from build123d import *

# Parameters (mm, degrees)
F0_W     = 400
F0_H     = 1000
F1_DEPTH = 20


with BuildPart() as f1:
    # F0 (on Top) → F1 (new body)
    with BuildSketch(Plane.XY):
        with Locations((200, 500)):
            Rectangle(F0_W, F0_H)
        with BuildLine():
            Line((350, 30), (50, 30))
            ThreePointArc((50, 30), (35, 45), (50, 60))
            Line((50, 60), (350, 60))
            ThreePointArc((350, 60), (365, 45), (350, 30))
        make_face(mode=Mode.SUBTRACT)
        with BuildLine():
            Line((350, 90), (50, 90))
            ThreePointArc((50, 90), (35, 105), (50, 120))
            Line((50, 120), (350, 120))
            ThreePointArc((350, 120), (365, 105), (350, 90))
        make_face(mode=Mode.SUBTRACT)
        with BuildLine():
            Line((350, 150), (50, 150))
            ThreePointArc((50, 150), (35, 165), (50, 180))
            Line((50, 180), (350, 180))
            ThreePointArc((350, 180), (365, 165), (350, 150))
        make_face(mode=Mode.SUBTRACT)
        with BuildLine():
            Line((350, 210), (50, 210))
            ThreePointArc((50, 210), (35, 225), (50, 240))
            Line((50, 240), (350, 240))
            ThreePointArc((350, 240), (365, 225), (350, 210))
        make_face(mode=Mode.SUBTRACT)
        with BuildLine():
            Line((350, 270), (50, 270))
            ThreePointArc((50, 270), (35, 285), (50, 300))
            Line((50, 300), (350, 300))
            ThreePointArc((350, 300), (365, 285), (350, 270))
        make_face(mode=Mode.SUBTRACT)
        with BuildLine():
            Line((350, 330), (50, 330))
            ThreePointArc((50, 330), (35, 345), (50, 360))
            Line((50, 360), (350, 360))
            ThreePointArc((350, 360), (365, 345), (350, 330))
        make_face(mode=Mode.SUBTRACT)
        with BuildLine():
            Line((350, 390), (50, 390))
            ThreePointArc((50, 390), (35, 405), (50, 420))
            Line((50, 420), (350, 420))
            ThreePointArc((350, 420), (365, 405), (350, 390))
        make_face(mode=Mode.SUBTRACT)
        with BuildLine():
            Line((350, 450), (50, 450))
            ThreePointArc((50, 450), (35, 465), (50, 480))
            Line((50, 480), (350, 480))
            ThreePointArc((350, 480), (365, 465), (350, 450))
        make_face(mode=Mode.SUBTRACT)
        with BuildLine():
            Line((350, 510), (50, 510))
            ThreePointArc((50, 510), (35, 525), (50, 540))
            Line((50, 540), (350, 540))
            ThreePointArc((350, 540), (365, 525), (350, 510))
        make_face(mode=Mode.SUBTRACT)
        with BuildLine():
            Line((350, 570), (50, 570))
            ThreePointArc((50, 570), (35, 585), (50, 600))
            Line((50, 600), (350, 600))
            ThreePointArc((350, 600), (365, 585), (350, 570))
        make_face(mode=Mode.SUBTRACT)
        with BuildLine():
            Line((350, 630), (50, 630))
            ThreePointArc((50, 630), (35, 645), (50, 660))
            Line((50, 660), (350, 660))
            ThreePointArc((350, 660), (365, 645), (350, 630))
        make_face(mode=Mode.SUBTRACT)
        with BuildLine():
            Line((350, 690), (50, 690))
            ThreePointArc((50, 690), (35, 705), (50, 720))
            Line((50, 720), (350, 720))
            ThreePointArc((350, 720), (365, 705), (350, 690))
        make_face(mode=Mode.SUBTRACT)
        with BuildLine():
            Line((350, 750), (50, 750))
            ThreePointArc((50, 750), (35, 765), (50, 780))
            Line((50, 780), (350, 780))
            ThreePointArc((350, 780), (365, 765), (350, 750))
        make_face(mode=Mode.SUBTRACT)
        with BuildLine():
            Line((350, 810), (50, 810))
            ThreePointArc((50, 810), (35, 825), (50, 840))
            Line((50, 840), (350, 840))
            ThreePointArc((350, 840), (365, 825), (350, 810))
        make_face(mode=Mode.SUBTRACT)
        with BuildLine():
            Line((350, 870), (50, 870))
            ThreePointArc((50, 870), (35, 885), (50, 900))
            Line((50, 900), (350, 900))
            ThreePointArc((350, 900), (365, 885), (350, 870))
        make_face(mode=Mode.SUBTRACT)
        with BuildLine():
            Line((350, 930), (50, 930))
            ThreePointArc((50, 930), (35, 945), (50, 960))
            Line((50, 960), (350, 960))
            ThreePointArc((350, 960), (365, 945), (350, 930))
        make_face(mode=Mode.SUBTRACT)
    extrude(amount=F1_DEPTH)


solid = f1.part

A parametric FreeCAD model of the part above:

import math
import FreeCAD as App
import Part
import Sketcher

V = App.Vector
Q = App.Units.Quantity

doc = App.newDocument("Part")
body = doc.addObject("PartDesign::Body", "Body")

sketch1 = body.newObject("Sketcher::SketchObject", "Sketch")
sketch1.AttachmentSupport = (doc.getObject("XY_Plane"), [""])
sketch1.MapMode = "FlatFace"
sketch1.addGeometry(Part.LineSegment(V(0, 1000, 0), V(0, 0, 0)), False)
sketch1.addGeometry(Part.LineSegment(V(0, 0, 0), V(400, 0, 0)), False)
sketch1.addGeometry(Part.LineSegment(V(400, 0, 0), V(400, 1000, 0)), False)
sketch1.addGeometry(Part.LineSegment(V(400, 1000, 0), V(0, 1000, 0)), False)
sketch1.addGeometry(Part.ArcOfCircle(Part.Circle(V(350, 45, 0), V(0, 0, 1), 15), math.radians(-90), math.radians(90)), False)
sketch1.addGeometry(Part.LineSegment(V(350, 30, 0), V(50, 30, 0)), False)
sketch1.addGeometry(Part.ArcOfCircle(Part.Circle(V(50, 45, 0), V(0, 0, 1), 15), math.radians(90), math.radians(270)), False)
sketch1.addGeometry(Part.LineSegment(V(50, 60, 0), V(350, 60, 0)), False)
sketch1.addGeometry(Part.ArcOfCircle(Part.Circle(V(350, 105, 0), V(0, 0, 1), 15), math.radians(-90), math.radians(90)), False)
sketch1.addGeometry(Part.LineSegment(V(350, 90, 0), V(50, 90, 0)), False)
sketch1.addGeometry(Part.ArcOfCircle(Part.Circle(V(50, 105, 0), V(0, 0, 1), 15), math.radians(90), math.radians(270)), False)
sketch1.addGeometry(Part.LineSegment(V(50, 120, 0), V(350, 120, 0)), False)
sketch1.addGeometry(Part.ArcOfCircle(Part.Circle(V(350, 165, 0), V(0, 0, 1), 15), math.radians(-90), math.radians(90)), False)
sketch1.addGeometry(Part.LineSegment(V(350, 150, 0), V(50, 150, 0)), False)
sketch1.addGeometry(Part.ArcOfCircle(Part.Circle(V(50, 165, 0), V(0, 0, 1), 15), math.radians(90), math.radians(270)), False)
sketch1.addGeometry(Part.LineSegment(V(50, 180, 0), V(350, 180, 0)), False)
sketch1.addGeometry(Part.ArcOfCircle(Part.Circle(V(350, 225, 0), V(0, 0, 1), 15), math.radians(-90), math.radians(90)), False)
sketch1.addGeometry(Part.LineSegment(V(350, 210, 0), V(50, 210, 0)), False)
sketch1.addGeometry(Part.ArcOfCircle(Part.Circle(V(50, 225, 0), V(0, 0, 1), 15), math.radians(90), math.radians(270)), False)
sketch1.addGeometry(Part.LineSegment(V(50, 240, 0), V(350, 240, 0)), False)
sketch1.addGeometry(Part.ArcOfCircle(Part.Circle(V(350, 285, 0), V(0, 0, 1), 15), math.radians(-90), math.radians(90)), False)
sketch1.addGeometry(Part.LineSegment(V(350, 270, 0), V(50, 270, 0)), False)
sketch1.addGeometry(Part.ArcOfCircle(Part.Circle(V(50, 285, 0), V(0, 0, 1), 15), math.radians(90), math.radians(270)), False)
sketch1.addGeometry(Part.LineSegment(V(50, 300, 0), V(350, 300, 0)), False)
sketch1.addGeometry(Part.ArcOfCircle(Part.Circle(V(350, 345, 0), V(0, 0, 1), 15), math.radians(-90), math.radians(90)), False)
sketch1.addGeometry(Part.LineSegment(V(350, 330, 0), V(50, 330, 0)), False)
sketch1.addGeometry(Part.ArcOfCircle(Part.Circle(V(50, 345, 0), V(0, 0, 1), 15), math.radians(90), math.radians(270)), False)
sketch1.addGeometry(Part.LineSegment(V(50, 360, 0), V(350, 360, 0)), False)
sketch1.addGeometry(Part.ArcOfCircle(Part.Circle(V(350, 405, 0), V(0, 0, 1), 15), math.radians(-90), math.radians(90)), False)
sketch1.addGeometry(Part.LineSegment(V(350, 390, 0), V(50, 390, 0)), False)
sketch1.addGeometry(Part.ArcOfCircle(Part.Circle(V(50, 405, 0), V(0, 0, 1), 15), math.radians(90), math.radians(270)), False)
sketch1.addGeometry(Part.LineSegment(V(50, 420, 0), V(350, 420, 0)), False)
sketch1.addGeometry(Part.ArcOfCircle(Part.Circle(V(350, 465, 0), V(0, 0, 1), 15), math.radians(-90), math.radians(90)), False)
sketch1.addGeometry(Part.LineSegment(V(350, 450, 0), V(50, 450, 0)), False)
sketch1.addGeometry(Part.ArcOfCircle(Part.Circle(V(50, 465, 0), V(0, 0, 1), 15), math.radians(90), math.radians(270)), False)
sketch1.addGeometry(Part.LineSegment(V(50, 480, 0), V(350, 480, 0)), False)
sketch1.addGeometry(Part.ArcOfCircle(Part.Circle(V(350, 525, 0), V(0, 0, 1), 15), math.radians(-90), math.radians(90)), False)
sketch1.addGeometry(Part.LineSegment(V(350, 510, 0), V(50, 510, 0)), False)
sketch1.addGeometry(Part.ArcOfCircle(Part.Circle(V(50, 525, 0), V(0, 0, 1), 15), math.radians(90), math.radians(270)), False)
sketch1.addGeometry(Part.LineSegment(V(50, 540, 0), V(350, 540, 0)), False)
sketch1.addGeometry(Part.ArcOfCircle(Part.Circle(V(350, 585, 0), V(0, 0, 1), 15), math.radians(-90), math.radians(90)), False)
sketch1.addGeometry(Part.LineSegment(V(350, 570, 0), V(50, 570, 0)), False)
sketch1.addGeometry(Part.ArcOfCircle(Part.Circle(V(50, 585, 0), V(0, 0, 1), 15), math.radians(90), math.radians(270)), False)
sketch1.addGeometry(Part.LineSegment(V(50, 600, 0), V(350, 600, 0)), False)
sketch1.addGeometry(Part.ArcOfCircle(Part.Circle(V(350, 645, 0), V(0, 0, 1), 15), math.radians(-90), math.radians(90)), False)
sketch1.addGeometry(Part.LineSegment(V(350, 630, 0), V(50, 630, 0)), False)
sketch1.addGeometry(Part.ArcOfCircle(Part.Circle(V(50, 645, 0), V(0, 0, 1), 15), math.radians(90), math.radians(270)), False)
sketch1.addGeometry(Part.LineSegment(V(50, 660, 0), V(350, 660, 0)), False)
sketch1.addGeometry(Part.ArcOfCircle(Part.Circle(V(350, 705, 0), V(0, 0, 1), 15), math.radians(-90), math.radians(90)), False)
sketch1.addGeometry(Part.LineSegment(V(350, 690, 0), V(50, 690, 0)), False)
sketch1.addGeometry(Part.ArcOfCircle(Part.Circle(V(50, 705, 0), V(0, 0, 1), 15), math.radians(90), math.radians(270)), False)
sketch1.addGeometry(Part.LineSegment(V(50, 720, 0), V(350, 720, 0)), False)
sketch1.addGeometry(Part.ArcOfCircle(Part.Circle(V(350, 765, 0), V(0, 0, 1), 15), math.radians(-90), math.radians(90)), False)
sketch1.addGeometry(Part.LineSegment(V(350, 750, 0), V(50, 750, 0)), False)
sketch1.addGeometry(Part.ArcOfCircle(Part.Circle(V(50, 765, 0), V(0, 0, 1), 15), math.radians(90), math.radians(270)), False)
sketch1.addGeometry(Part.LineSegment(V(50, 780, 0), V(350, 780, 0)), False)
sketch1.addGeometry(Part.ArcOfCircle(Part.Circle(V(350, 825, 0), V(0, 0, 1), 15), math.radians(-90), math.radians(90)), False)
sketch1.addGeometry(Part.LineSegment(V(350, 810, 0), V(50, 810, 0)), False)
sketch1.addGeometry(Part.ArcOfCircle(Part.Circle(V(50, 825, 0), V(0, 0, 1), 15), math.radians(90), math.radians(270)), False)
sketch1.addGeometry(Part.LineSegment(V(50, 840, 0), V(350, 840, 0)), False)
sketch1.addGeometry(Part.ArcOfCircle(Part.Circle(V(350, 885, 0), V(0, 0, 1), 15), math.radians(-90), math.radians(90)), False)
sketch1.addGeometry(Part.LineSegment(V(350, 870, 0), V(50, 870, 0)), False)
sketch1.addGeometry(Part.ArcOfCircle(Part.Circle(V(50, 885, 0), V(0, 0, 1), 15), math.radians(90), math.radians(270)), False)
sketch1.addGeometry(Part.LineSegment(V(50, 900, 0), V(350, 900, 0)), False)
sketch1.addGeometry(Part.ArcOfCircle(Part.Circle(V(350, 945, 0), V(0, 0, 1), 15), math.radians(-90), math.radians(90)), False)
sketch1.addGeometry(Part.LineSegment(V(350, 930, 0), V(50, 930, 0)), False)
sketch1.addGeometry(Part.ArcOfCircle(Part.Circle(V(50, 945, 0), V(0, 0, 1), 15), math.radians(90), math.radians(270)), False)
sketch1.addGeometry(Part.LineSegment(V(50, 960, 0), V(350, 960, 0)), False)
sketch1.addConstraint(Sketcher.Constraint("Coincident", 0, 2, 1, 1))
sketch1.addConstraint(Sketcher.Constraint("Coincident", 1, 2, 2, 1))
sketch1.addConstraint(Sketcher.Constraint("Coincident", 2, 2, 3, 1))
sketch1.addConstraint(Sketcher.Constraint("Coincident", 3, 2, 0, 1))
sketch1.addConstraint(Sketcher.Constraint("Tangent", 4, 1, 5, 1))
sketch1.addConstraint(Sketcher.Constraint("Tangent", 5, 2, 6, 2))
sketch1.addConstraint(Sketcher.Constraint("Tangent", 6, 1, 7, 1))
sketch1.addConstraint(Sketcher.Constraint("Tangent", 7, 2, 4, 2))
sketch1.addConstraint(Sketcher.Constraint("Tangent", 8, 1, 9, 1))
sketch1.addConstraint(Sketcher.Constraint("Tangent", 9, 2, 10, 2))
sketch1.addConstraint(Sketcher.Constraint("Tangent", 10, 1, 11, 1))
sketch1.addConstraint(Sketcher.Constraint("Tangent", 11, 2, 8, 2))
sketch1.addConstraint(Sketcher.Constraint("Tangent", 12, 1, 13, 1))
sketch1.addConstraint(Sketcher.Constraint("Tangent", 13, 2, 14, 2))
sketch1.addConstraint(Sketcher.Constraint("Tangent", 14, 1, 15, 1))
sketch1.addConstraint(Sketcher.Constraint("Tangent", 15, 2, 12, 2))
sketch1.addConstraint(Sketcher.Constraint("Tangent", 16, 1, 17, 1))
sketch1.addConstraint(Sketcher.Constraint("Tangent", 17, 2, 18, 2))
sketch1.addConstraint(Sketcher.Constraint("Tangent", 18, 1, 19, 1))
sketch1.addConstraint(Sketcher.Constraint("Tangent", 19, 2, 16, 2))
sketch1.addConstraint(Sketcher.Constraint("Tangent", 20, 1, 21, 1))
sketch1.addConstraint(Sketcher.Constraint("Tangent", 21, 2, 22, 2))
sketch1.addConstraint(Sketcher.Constraint("Tangent", 22, 1, 23, 1))
sketch1.addConstraint(Sketcher.Constraint("Tangent", 23, 2, 20, 2))
sketch1.addConstraint(Sketcher.Constraint("Tangent", 24, 1, 25, 1))
sketch1.addConstraint(Sketcher.Constraint("Tangent", 25, 2, 26, 2))
sketch1.addConstraint(Sketcher.Constraint("Tangent", 26, 1, 27, 1))
sketch1.addConstraint(Sketcher.Constraint("Tangent", 27, 2, 24, 2))
sketch1.addConstraint(Sketcher.Constraint("Tangent", 28, 1, 29, 1))
sketch1.addConstraint(Sketcher.Constraint("Tangent", 29, 2, 30, 2))
sketch1.addConstraint(Sketcher.Constraint("Tangent", 30, 1, 31, 1))
sketch1.addConstraint(Sketcher.Constraint("Tangent", 31, 2, 28, 2))
sketch1.addConstraint(Sketcher.Constraint("Tangent", 32, 1, 33, 1))
sketch1.addConstraint(Sketcher.Constraint("Tangent", 33, 2, 34, 2))
sketch1.addConstraint(Sketcher.Constraint("Tangent", 34, 1, 35, 1))
sketch1.addConstraint(Sketcher.Constraint("Tangent", 35, 2, 32, 2))
sketch1.addConstraint(Sketcher.Constraint("Tangent", 36, 1, 37, 1))
sketch1.addConstraint(Sketcher.Constraint("Tangent", 37, 2, 38, 2))
sketch1.addConstraint(Sketcher.Constraint("Tangent", 38, 1, 39, 1))
sketch1.addConstraint(Sketcher.Constraint("Tangent", 39, 2, 36, 2))
sketch1.addConstraint(Sketcher.Constraint("Tangent", 40, 1, 41, 1))
sketch1.addConstraint(Sketcher.Constraint("Tangent", 41, 2, 42, 2))
sketch1.addConstraint(Sketcher.Constraint("Tangent", 42, 1, 43, 1))
sketch1.addConstraint(Sketcher.Constraint("Tangent", 43, 2, 40, 2))
sketch1.addConstraint(Sketcher.Constraint("Tangent", 44, 1, 45, 1))
sketch1.addConstraint(Sketcher.Constraint("Tangent", 45, 2, 46, 2))
sketch1.addConstraint(Sketcher.Constraint("Tangent", 46, 1, 47, 1))
sketch1.addConstraint(Sketcher.Constraint("Tangent", 47, 2, 44, 2))
sketch1.addConstraint(Sketcher.Constraint("Tangent", 48, 1, 49, 1))
sketch1.addConstraint(Sketcher.Constraint("Tangent", 49, 2, 50, 2))
sketch1.addConstraint(Sketcher.Constraint("Tangent", 50, 1, 51, 1))
sketch1.addConstraint(Sketcher.Constraint("Tangent", 51, 2, 48, 2))
sketch1.addConstraint(Sketcher.Constraint("Tangent", 52, 1, 53, 1))
sketch1.addConstraint(Sketcher.Constraint("Tangent", 53, 2, 54, 2))
sketch1.addConstraint(Sketcher.Constraint("Tangent", 54, 1, 55, 1))
sketch1.addConstraint(Sketcher.Constraint("Tangent", 55, 2, 52, 2))
sketch1.addConstraint(Sketcher.Constraint("Tangent", 56, 1, 57, 1))
sketch1.addConstraint(Sketcher.Constraint("Tangent", 57, 2, 58, 2))
sketch1.addConstraint(Sketcher.Constraint("Tangent", 58, 1, 59, 1))
sketch1.addConstraint(Sketcher.Constraint("Tangent", 59, 2, 56, 2))
sketch1.addConstraint(Sketcher.Constraint("Tangent", 60, 1, 61, 1))
sketch1.addConstraint(Sketcher.Constraint("Tangent", 61, 2, 62, 2))
sketch1.addConstraint(Sketcher.Constraint("Tangent", 62, 1, 63, 1))
sketch1.addConstraint(Sketcher.Constraint("Tangent", 63, 2, 60, 2))
sketch1.addConstraint(Sketcher.Constraint("Tangent", 64, 1, 65, 1))
sketch1.addConstraint(Sketcher.Constraint("Tangent", 65, 2, 66, 2))
sketch1.addConstraint(Sketcher.Constraint("Tangent", 66, 1, 67, 1))
sketch1.addConstraint(Sketcher.Constraint("Tangent", 67, 2, 64, 2))
sketch1.addConstraint(Sketcher.Constraint("Vertical", 0))
sketch1.addConstraint(Sketcher.Constraint("Horizontal", 1))
sketch1.addConstraint(Sketcher.Constraint("Vertical", 2))
sketch1.addConstraint(Sketcher.Constraint("Horizontal", 3))
sketch1.addConstraint(Sketcher.Constraint("Horizontal", 5))
sketch1.addConstraint(Sketcher.Constraint("Horizontal", 7))
sketch1.addConstraint(Sketcher.Constraint("Horizontal", 9))
sketch1.addConstraint(Sketcher.Constraint("Horizontal", 11))
sketch1.addConstraint(Sketcher.Constraint("Horizontal", 13))
sketch1.addConstraint(Sketcher.Constraint("Horizontal", 15))
sketch1.addConstraint(Sketcher.Constraint("Horizontal", 17))
sketch1.addConstraint(Sketcher.Constraint("Horizontal", 19))
sketch1.addConstraint(Sketcher.Constraint("Horizontal", 21))
sketch1.addConstraint(Sketcher.Constraint("Horizontal", 23))
sketch1.addConstraint(Sketcher.Constraint("Horizontal", 25))
sketch1.addConstraint(Sketcher.Constraint("Horizontal", 27))
sketch1.addConstraint(Sketcher.Constraint("Horizontal", 29))
sketch1.addConstraint(Sketcher.Constraint("Horizontal", 31))
sketch1.addConstraint(Sketcher.Constraint("Horizontal", 33))
sketch1.addConstraint(Sketcher.Constraint("Horizontal", 35))
sketch1.addConstraint(Sketcher.Constraint("Horizontal", 37))
sketch1.addConstraint(Sketcher.Constraint("Horizontal", 39))
sketch1.addConstraint(Sketcher.Constraint("Horizontal", 41))
sketch1.addConstraint(Sketcher.Constraint("Horizontal", 43))
sketch1.addConstraint(Sketcher.Constraint("Horizontal", 45))
sketch1.addConstraint(Sketcher.Constraint("Horizontal", 47))
sketch1.addConstraint(Sketcher.Constraint("Horizontal", 49))
sketch1.addConstraint(Sketcher.Constraint("Horizontal", 51))
sketch1.addConstraint(Sketcher.Constraint("Horizontal", 53))
sketch1.addConstraint(Sketcher.Constraint("Horizontal", 55))
sketch1.addConstraint(Sketcher.Constraint("Horizontal", 57))
sketch1.addConstraint(Sketcher.Constraint("Horizontal", 59))
sketch1.addConstraint(Sketcher.Constraint("Horizontal", 61))
sketch1.addConstraint(Sketcher.Constraint("Horizontal", 63))
sketch1.addConstraint(Sketcher.Constraint("Horizontal", 65))
sketch1.addConstraint(Sketcher.Constraint("Horizontal", 67))
sketch1.addConstraint(Sketcher.Constraint("Coincident", 0, 2, -1, 1))
sketch1.addConstraint(Sketcher.Constraint("Equal", 6, 8))
sketch1.addConstraint(Sketcher.Constraint("Equal", 10, 12))
sketch1.addConstraint(Sketcher.Constraint("Equal", 14, 16))
sketch1.addConstraint(Sketcher.Constraint("Equal", 18, 20))
sketch1.addConstraint(Sketcher.Constraint("Equal", 22, 24))
sketch1.addConstraint(Sketcher.Constraint("Equal", 26, 28))
sketch1.addConstraint(Sketcher.Constraint("Equal", 30, 32))
sketch1.addConstraint(Sketcher.Constraint("Equal", 34, 36))
sketch1.addConstraint(Sketcher.Constraint("Equal", 38, 40))
sketch1.addConstraint(Sketcher.Constraint("Equal", 42, 44))
sketch1.addConstraint(Sketcher.Constraint("Equal", 46, 48))
sketch1.addConstraint(Sketcher.Constraint("Equal", 50, 52))
sketch1.addConstraint(Sketcher.Constraint("Equal", 54, 56))
sketch1.addConstraint(Sketcher.Constraint("Equal", 58, 60))
sketch1.addConstraint(Sketcher.Constraint("Equal", 62, 64))
sketch1.addConstraint(Sketcher.Constraint("Vertical", 4, 3, 8, 3))
sketch1.addConstraint(Sketcher.Constraint("Vertical", 6, 3, 10, 3))
sketch1.addConstraint(Sketcher.Constraint("Vertical", 8, 3, 12, 3))
sketch1.addConstraint(Sketcher.Constraint("Vertical", 10, 3, 14, 3))
sketch1.addConstraint(Sketcher.Constraint("Vertical", 12, 3, 16, 3))
sketch1.addConstraint(Sketcher.Constraint("Vertical", 14, 3, 18, 3))
sketch1.addConstraint(Sketcher.Constraint("Vertical", 16, 3, 20, 3))
sketch1.addConstraint(Sketcher.Constraint("Vertical", 18, 3, 22, 3))
sketch1.addConstraint(Sketcher.Constraint("Vertical", 20, 3, 24, 3))
sketch1.addConstraint(Sketcher.Constraint("Vertical", 22, 3, 26, 3))
sketch1.addConstraint(Sketcher.Constraint("Vertical", 24, 3, 28, 3))
sketch1.addConstraint(Sketcher.Constraint("Vertical", 26, 3, 30, 3))
sketch1.addConstraint(Sketcher.Constraint("Vertical", 28, 3, 32, 3))
sketch1.addConstraint(Sketcher.Constraint("Vertical", 30, 3, 34, 3))
sketch1.addConstraint(Sketcher.Constraint("Vertical", 32, 3, 36, 3))
sketch1.addConstraint(Sketcher.Constraint("Vertical", 34, 3, 38, 3))
sketch1.addConstraint(Sketcher.Constraint("Vertical", 36, 3, 40, 3))
sketch1.addConstraint(Sketcher.Constraint("Vertical", 38, 3, 42, 3))
sketch1.addConstraint(Sketcher.Constraint("Vertical", 40, 3, 44, 3))
sketch1.addConstraint(Sketcher.Constraint("Vertical", 42, 3, 46, 3))
sketch1.addConstraint(Sketcher.Constraint("Vertical", 44, 3, 48, 3))
sketch1.addConstraint(Sketcher.Constraint("Vertical", 46, 3, 50, 3))
sketch1.addConstraint(Sketcher.Constraint("Vertical", 48, 3, 52, 3))
sketch1.addConstraint(Sketcher.Constraint("Vertical", 50, 3, 54, 3))
sketch1.addConstraint(Sketcher.Constraint("Vertical", 52, 3, 56, 3))
sketch1.addConstraint(Sketcher.Constraint("Vertical", 54, 3, 58, 3))
sketch1.addConstraint(Sketcher.Constraint("Vertical", 56, 3, 60, 3))
sketch1.addConstraint(Sketcher.Constraint("Vertical", 58, 3, 62, 3))
sketch1.addConstraint(Sketcher.Constraint("Vertical", 60, 3, 64, 3))
sketch1.addConstraint(Sketcher.Constraint("Vertical", 62, 3, 66, 3))
sketch1.addConstraint(Sketcher.Constraint("Radius", 4, Q("15 mm")))
sketch1.addConstraint(Sketcher.Constraint("DistanceX", 1, 1, 1, 2, Q("400 mm")))
sketch1.addConstraint(Sketcher.Constraint("DistanceX", 5, 2, 5, 1, Q("300 mm")))
sketch1.addConstraint(Sketcher.Constraint("DistanceY", 0, 2, 0, 1, Q("1000 mm")))
sketch1.addConstraint(Sketcher.Constraint("DistanceX", -1, 1, 4, 3, Q("350 mm")))
sketch1.addConstraint(Sketcher.Constraint("DistanceY", -1, 1, 4, 3, Q("45 mm")))
sketch1.addConstraint(Sketcher.Constraint("DistanceY", -1, 1, 8, 3, Q("105 mm")))
sketch1.addConstraint(Sketcher.Constraint("DistanceY", -1, 1, 12, 3, Q("165 mm")))
sketch1.addConstraint(Sketcher.Constraint("DistanceY", -1, 1, 16, 3, Q("225 mm")))
sketch1.addConstraint(Sketcher.Constraint("DistanceY", -1, 1, 20, 3, Q("285 mm")))
sketch1.addConstraint(Sketcher.Constraint("DistanceY", -1, 1, 24, 3, Q("345 mm")))
sketch1.addConstraint(Sketcher.Constraint("DistanceY", -1, 1, 28, 3, Q("405 mm")))
sketch1.addConstraint(Sketcher.Constraint("DistanceY", -1, 1, 32, 3, Q("465 mm")))
sketch1.addConstraint(Sketcher.Constraint("DistanceY", -1, 1, 36, 3, Q("525 mm")))
sketch1.addConstraint(Sketcher.Constraint("DistanceY", -1, 1, 40, 3, Q("585 mm")))
sketch1.addConstraint(Sketcher.Constraint("DistanceY", -1, 1, 44, 3, Q("645 mm")))
sketch1.addConstraint(Sketcher.Constraint("DistanceY", -1, 1, 48, 3, Q("705 mm")))
sketch1.addConstraint(Sketcher.Constraint("DistanceY", -1, 1, 52, 3, Q("765 mm")))
sketch1.addConstraint(Sketcher.Constraint("DistanceY", -1, 1, 56, 3, Q("825 mm")))
sketch1.addConstraint(Sketcher.Constraint("DistanceY", -1, 1, 60, 3, Q("885 mm")))
sketch1.addConstraint(Sketcher.Constraint("DistanceY", -1, 1, 64, 3, Q("945 mm")))
pad1 = body.newObject("PartDesign::Pad", "Pad")
pad1.Profile = sketch1
pad1.Length = 20

doc.recompute()
